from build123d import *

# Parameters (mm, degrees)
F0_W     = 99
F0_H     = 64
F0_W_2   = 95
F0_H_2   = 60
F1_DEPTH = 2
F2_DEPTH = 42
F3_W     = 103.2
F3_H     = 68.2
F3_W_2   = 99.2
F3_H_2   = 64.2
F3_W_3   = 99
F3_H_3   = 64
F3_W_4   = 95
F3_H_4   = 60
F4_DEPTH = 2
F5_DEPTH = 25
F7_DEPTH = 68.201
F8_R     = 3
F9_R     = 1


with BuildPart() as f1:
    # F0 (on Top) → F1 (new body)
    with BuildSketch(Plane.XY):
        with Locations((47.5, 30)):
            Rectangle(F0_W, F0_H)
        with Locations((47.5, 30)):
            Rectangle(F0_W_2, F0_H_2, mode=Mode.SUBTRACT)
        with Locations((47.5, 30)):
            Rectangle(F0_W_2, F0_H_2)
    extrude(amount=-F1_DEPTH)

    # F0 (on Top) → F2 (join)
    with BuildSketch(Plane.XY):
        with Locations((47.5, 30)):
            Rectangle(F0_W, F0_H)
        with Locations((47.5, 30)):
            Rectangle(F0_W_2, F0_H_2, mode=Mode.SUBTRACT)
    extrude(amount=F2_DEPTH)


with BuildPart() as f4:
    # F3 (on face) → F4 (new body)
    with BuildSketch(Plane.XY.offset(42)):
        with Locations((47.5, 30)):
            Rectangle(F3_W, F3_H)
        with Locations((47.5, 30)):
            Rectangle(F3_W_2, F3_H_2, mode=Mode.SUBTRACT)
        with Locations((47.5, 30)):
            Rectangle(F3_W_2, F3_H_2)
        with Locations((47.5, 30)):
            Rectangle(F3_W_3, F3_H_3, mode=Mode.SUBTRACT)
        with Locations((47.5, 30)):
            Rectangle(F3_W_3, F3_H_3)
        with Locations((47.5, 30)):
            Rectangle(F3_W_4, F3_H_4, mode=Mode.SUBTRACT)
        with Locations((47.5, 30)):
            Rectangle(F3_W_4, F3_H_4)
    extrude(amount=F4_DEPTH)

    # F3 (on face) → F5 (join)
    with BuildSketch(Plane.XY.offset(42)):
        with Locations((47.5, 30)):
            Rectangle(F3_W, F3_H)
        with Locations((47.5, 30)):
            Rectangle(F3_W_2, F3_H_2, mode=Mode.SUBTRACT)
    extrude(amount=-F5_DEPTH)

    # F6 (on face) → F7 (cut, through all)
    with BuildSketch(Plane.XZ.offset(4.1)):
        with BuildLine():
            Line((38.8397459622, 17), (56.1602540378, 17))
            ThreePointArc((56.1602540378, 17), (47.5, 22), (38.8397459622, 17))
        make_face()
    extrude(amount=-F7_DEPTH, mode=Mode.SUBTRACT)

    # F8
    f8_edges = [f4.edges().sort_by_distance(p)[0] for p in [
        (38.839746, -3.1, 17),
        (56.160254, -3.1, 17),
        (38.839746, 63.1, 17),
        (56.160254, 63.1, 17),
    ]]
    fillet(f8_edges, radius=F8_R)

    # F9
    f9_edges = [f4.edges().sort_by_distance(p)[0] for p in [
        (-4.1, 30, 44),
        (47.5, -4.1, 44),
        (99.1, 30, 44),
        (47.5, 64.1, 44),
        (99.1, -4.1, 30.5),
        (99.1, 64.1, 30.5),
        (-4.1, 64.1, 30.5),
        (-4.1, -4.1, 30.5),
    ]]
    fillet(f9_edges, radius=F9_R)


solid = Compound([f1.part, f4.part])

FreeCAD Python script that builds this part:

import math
import FreeCAD as App
import Part
import Sketcher

V = App.Vector
Q = App.Units.Quantity


def edges_at(feature, points):
    """Names of the edges that pass closest to the given points."""
    edges = feature.Shape.Edges
    near = lambda p: min(range(len(edges)), key=lambda i: edges[i].distToShape(Part.Vertex(*p))[0])
    return sorted({f"Edge{near(p) + 1}" for p in points})


def add_polygon(sketch, points):
    """Adds a closed chain of lines whose ends are joined by coincident constraints."""
    first, n = sketch.GeometryCount, len(points)
    for a, b in zip(points, points[1:] + points[:1]):
        sketch.addGeometry(Part.LineSegment(App.Vector(*a, 0), App.Vector(*b, 0)), False)
    for i in range(n):
        sketch.addConstraint(Sketcher.Constraint("Coincident", first + i, 2, first + (i + 1) % n, 1))

doc = App.newDocument("Part")
body = doc.addObject("PartDesign::Body", "Body")

# Sketch on XY plane
sketch1 = body.newObject("Sketcher::SketchObject", "Sketch")
sketch1.AttachmentSupport = (doc.getObject("XY_Plane"), [""])
sketch1.MapMode = "FlatFace"
add_polygon(sketch1, [(-2, 62), (-2, -2), (97, -2), (97, 62)])  # lines 0-3
sketch1.addConstraint([
    Sketcher.Constraint("Vertical", 0),
    Sketcher.Constraint("Horizontal", 1),
    Sketcher.Constraint("Vertical", 2),
    Sketcher.Constraint("Horizontal", 3),
    Sketcher.Constraint("DistanceX", 1, 1, 1, 2, Q("99 mm")),
    Sketcher.Constraint("DistanceY", 0, 2, 0, 1, Q("64 mm")),
    Sketcher.Constraint("DistanceX", 0, 2, -1, 1, Q("2 mm")),
    Sketcher.Constraint("DistanceY", 0, 2, -1, 1, Q("2 mm")),
])
pad1 = body.newObject("PartDesign::Pad", "Pad")
pad1.Profile = sketch1
pad1.Length = 2
pad1.Reversed = True

# Sketch on XY plane
sketch2 = body.newObject("Sketcher::SketchObject", "Sketch001")
sketch2.AttachmentSupport = (doc.getObject("XY_Plane"), [""])
sketch2.MapMode = "FlatFace"
add_polygon(sketch2, [(-2, 62), (-2, -2), (97, -2), (97, 62)])  # lines 0-3
add_polygon(sketch2, [(95, 0), (0, 0), (0, 60), (95, 60)])  # lines 4-7
sketch2.addConstraint([
    Sketcher.Constraint("Vertical", 0),
    Sketcher.Constraint("Horizontal", 1),
    Sketcher.Constraint("Vertical", 2),
    Sketcher.Constraint("Horizontal", 3),
    Sketcher.Constraint("Horizontal", 4),
    Sketcher.Constraint("Vertical", 5),
    Sketcher.Constraint("Horizontal", 6),
    Sketcher.Constraint("Vertical", 7),
    Sketcher.Constraint("Coincident", 4, 2, -1, 1),
    Sketcher.Constraint("DistanceX", 1, 1, 1, 2, Q("99 mm")),
    Sketcher.Constraint("DistanceX", 4, 2, 4, 1, Q("95 mm")),
    Sketcher.Constraint("DistanceY", 0, 2, 0, 1, Q("64 mm")),
    Sketcher.Constraint("DistanceY", 5, 1, 5, 2, Q("60 mm")),
    Sketcher.Constraint("DistanceX", 0, 2, -1, 1, Q("2 mm")),
    Sketcher.Constraint("DistanceY", 0, 2, -1, 1, Q("2 mm")),
])
pad2 = body.newObject("PartDesign::Pad", "Pad001")
pad2.Profile = sketch2
pad2.Length = 42
body2 = doc.addObject("PartDesign::Body", "Body001")

# Sketch on XY plane
sketch3 = body2.newObject("Sketcher::SketchObject", "Sketch002")
sketch3.AttachmentSupport = (doc.getObject("XY_Plane001"), [""])
sketch3.MapMode = "FlatFace"
sketch3.AttachmentOffset = App.Placement(V(0, 0, 42), App.Rotation())
add_polygon(sketch3, [(-4, 64), (-4, -4), (99, -4), (99, 64)])  # lines 0-3
sketch3.addConstraint([
    Sketcher.Constraint("Vertical", 0),
    Sketcher.Constraint("Horizontal", 1),
    Sketcher.Constraint("Vertical", 2),
    Sketcher.Constraint("Horizontal", 3),
    Sketcher.Constraint("DistanceX", 1, 1, 1, 2, Q("103.2 mm")),
    Sketcher.Constraint("DistanceY", 0, 2, 0, 1, Q("68.2 mm")),
    Sketcher.Constraint("DistanceX", 0, 2, -1, 1, Q("4.1 mm")),
    Sketcher.Constraint("DistanceY", 0, 2, -1, 1, Q("4.1 mm")),
])
pad3 = body2.newObject("PartDesign::Pad", "Pad002")
pad3.Profile = sketch3
pad3.Length = 2

# Sketch on XY plane
sketch4 = body2.newObject("Sketcher::SketchObject", "Sketch003")
sketch4.AttachmentSupport = (doc.getObject("XY_Plane001"), [""])
sketch4.MapMode = "FlatFace"
sketch4.AttachmentOffset = App.Placement(V(0, 0, 42), App.Rotation())
add_polygon(sketch4, [(-4, 64), (-4, -4), (99, -4), (99, 64)])  # lines 0-3
add_polygon(sketch4, [(97, -2), (-2, -2), (-2, 62), (97, 62)])  # lines 4-7
sketch4.addConstraint([
    Sketcher.Constraint("Vertical", 0),
    Sketcher.Constraint("Horizontal", 1),
    Sketcher.Constraint("Vertical", 2),
    Sketcher.Constraint("Horizontal", 3),
    Sketcher.Constraint("Horizontal", 4),
    Sketcher.Constraint("Vertical", 5),
    Sketcher.Constraint("Horizontal", 6),
    Sketcher.Constraint("Vertical", 7),
    Sketcher.Constraint("DistanceX", 1, 1, 1, 2, Q("103.2 mm")),
    Sketcher.Constraint("DistanceX", 4, 2, 4, 1, Q("99.2 mm")),
    Sketcher.Constraint("DistanceY", 0, 2, 0, 1, Q("68.2 mm")),
    Sketcher.Constraint("DistanceY", 5, 1, 5, 2, Q("64.2 mm")),
    Sketcher.Constraint("DistanceX", 0, 2, 4, 2, Q("2 mm")),
    Sketcher.Constraint("DistanceY", 0, 2, 4, 2, Q("2 mm")),
    Sketcher.Constraint("DistanceX", 0, 2, -1, 1, Q("4.1 mm")),
    Sketcher.Constraint("DistanceY", 0, 2, -1, 1, Q("4.1 mm")),
])
pad4 = body2.newObject("PartDesign::Pad", "Pad003")
pad4.Profile = sketch4
pad4.Length = 25
pad4.Reversed = True

# Sketch on XZ plane
sketch5 = body2.newObject("Sketcher::SketchObject", "Sketch004")
sketch5.AttachmentSupport = (doc.getObject("XZ_Plane001"), [""])
sketch5.MapMode = "FlatFace"
sketch5.AttachmentOffset = App.Placement(V(0, 0, 4.1), App.Rotation())
sketch5.addGeometry([
    Part.LineSegment(V(39, 17, 0), V(56, 17, 0)),
    Part.ArcOfCircle(Part.Circle(V(48, 12, 0), V(0, 0, 1), 10), math.radians(30), math.radians(150)),
], False)
sketch5.addConstraint([
    Sketcher.Constraint("Coincident", 0, 1, 1, 2),
    Sketcher.Constraint("Coincident", 1, 1, 0, 2),
    Sketcher.Constraint("Horizontal", 0),
    Sketcher.Constraint("Radius", 1, Q("10 mm")),
    Sketcher.Constraint("DistanceY", -1, 1, 1, 3, Q("12 mm")),
    Sketcher.Constraint("DistanceY", -1, 1, 0, 1, Q("17 mm")),
    Sketcher.Constraint("DistanceX", -1, 1, 1, 3, Q("47.5 mm")),
])
pocket1 = body2.newObject("PartDesign::Pocket", "Pocket")
pocket1.Profile = sketch5
pocket1.Type = "ThroughAll"
doc.recompute()

fillet = body2.newObject("PartDesign::Fillet", "Fillet")
fillet.Base = (pocket1, edges_at(pocket1, [
    (38.84, -3.1, 17),
    (56.16, -3.1, 17),
    (38.84, 63.1, 17),
    (56.16, 63.1, 17),
]))
fillet.Radius = 3
doc.recompute()

fillet2 = body2.newObject("PartDesign::Fillet", "Fillet001")
fillet2.Base = (fillet, edges_at(fillet, [
    (-4.1, 30, 44),
    (47.5, -4.1, 44),
    (99.1, 30, 44),
    (47.5, 64.1, 44),
    (99.1, -4.1, 30.5),
    (99.1, 64.1, 30.5),
    (-4.1, 64.1, 30.5),
    (-4.1, -4.1, 30.5),
]))
fillet2.Radius = 1

doc.recompute()
